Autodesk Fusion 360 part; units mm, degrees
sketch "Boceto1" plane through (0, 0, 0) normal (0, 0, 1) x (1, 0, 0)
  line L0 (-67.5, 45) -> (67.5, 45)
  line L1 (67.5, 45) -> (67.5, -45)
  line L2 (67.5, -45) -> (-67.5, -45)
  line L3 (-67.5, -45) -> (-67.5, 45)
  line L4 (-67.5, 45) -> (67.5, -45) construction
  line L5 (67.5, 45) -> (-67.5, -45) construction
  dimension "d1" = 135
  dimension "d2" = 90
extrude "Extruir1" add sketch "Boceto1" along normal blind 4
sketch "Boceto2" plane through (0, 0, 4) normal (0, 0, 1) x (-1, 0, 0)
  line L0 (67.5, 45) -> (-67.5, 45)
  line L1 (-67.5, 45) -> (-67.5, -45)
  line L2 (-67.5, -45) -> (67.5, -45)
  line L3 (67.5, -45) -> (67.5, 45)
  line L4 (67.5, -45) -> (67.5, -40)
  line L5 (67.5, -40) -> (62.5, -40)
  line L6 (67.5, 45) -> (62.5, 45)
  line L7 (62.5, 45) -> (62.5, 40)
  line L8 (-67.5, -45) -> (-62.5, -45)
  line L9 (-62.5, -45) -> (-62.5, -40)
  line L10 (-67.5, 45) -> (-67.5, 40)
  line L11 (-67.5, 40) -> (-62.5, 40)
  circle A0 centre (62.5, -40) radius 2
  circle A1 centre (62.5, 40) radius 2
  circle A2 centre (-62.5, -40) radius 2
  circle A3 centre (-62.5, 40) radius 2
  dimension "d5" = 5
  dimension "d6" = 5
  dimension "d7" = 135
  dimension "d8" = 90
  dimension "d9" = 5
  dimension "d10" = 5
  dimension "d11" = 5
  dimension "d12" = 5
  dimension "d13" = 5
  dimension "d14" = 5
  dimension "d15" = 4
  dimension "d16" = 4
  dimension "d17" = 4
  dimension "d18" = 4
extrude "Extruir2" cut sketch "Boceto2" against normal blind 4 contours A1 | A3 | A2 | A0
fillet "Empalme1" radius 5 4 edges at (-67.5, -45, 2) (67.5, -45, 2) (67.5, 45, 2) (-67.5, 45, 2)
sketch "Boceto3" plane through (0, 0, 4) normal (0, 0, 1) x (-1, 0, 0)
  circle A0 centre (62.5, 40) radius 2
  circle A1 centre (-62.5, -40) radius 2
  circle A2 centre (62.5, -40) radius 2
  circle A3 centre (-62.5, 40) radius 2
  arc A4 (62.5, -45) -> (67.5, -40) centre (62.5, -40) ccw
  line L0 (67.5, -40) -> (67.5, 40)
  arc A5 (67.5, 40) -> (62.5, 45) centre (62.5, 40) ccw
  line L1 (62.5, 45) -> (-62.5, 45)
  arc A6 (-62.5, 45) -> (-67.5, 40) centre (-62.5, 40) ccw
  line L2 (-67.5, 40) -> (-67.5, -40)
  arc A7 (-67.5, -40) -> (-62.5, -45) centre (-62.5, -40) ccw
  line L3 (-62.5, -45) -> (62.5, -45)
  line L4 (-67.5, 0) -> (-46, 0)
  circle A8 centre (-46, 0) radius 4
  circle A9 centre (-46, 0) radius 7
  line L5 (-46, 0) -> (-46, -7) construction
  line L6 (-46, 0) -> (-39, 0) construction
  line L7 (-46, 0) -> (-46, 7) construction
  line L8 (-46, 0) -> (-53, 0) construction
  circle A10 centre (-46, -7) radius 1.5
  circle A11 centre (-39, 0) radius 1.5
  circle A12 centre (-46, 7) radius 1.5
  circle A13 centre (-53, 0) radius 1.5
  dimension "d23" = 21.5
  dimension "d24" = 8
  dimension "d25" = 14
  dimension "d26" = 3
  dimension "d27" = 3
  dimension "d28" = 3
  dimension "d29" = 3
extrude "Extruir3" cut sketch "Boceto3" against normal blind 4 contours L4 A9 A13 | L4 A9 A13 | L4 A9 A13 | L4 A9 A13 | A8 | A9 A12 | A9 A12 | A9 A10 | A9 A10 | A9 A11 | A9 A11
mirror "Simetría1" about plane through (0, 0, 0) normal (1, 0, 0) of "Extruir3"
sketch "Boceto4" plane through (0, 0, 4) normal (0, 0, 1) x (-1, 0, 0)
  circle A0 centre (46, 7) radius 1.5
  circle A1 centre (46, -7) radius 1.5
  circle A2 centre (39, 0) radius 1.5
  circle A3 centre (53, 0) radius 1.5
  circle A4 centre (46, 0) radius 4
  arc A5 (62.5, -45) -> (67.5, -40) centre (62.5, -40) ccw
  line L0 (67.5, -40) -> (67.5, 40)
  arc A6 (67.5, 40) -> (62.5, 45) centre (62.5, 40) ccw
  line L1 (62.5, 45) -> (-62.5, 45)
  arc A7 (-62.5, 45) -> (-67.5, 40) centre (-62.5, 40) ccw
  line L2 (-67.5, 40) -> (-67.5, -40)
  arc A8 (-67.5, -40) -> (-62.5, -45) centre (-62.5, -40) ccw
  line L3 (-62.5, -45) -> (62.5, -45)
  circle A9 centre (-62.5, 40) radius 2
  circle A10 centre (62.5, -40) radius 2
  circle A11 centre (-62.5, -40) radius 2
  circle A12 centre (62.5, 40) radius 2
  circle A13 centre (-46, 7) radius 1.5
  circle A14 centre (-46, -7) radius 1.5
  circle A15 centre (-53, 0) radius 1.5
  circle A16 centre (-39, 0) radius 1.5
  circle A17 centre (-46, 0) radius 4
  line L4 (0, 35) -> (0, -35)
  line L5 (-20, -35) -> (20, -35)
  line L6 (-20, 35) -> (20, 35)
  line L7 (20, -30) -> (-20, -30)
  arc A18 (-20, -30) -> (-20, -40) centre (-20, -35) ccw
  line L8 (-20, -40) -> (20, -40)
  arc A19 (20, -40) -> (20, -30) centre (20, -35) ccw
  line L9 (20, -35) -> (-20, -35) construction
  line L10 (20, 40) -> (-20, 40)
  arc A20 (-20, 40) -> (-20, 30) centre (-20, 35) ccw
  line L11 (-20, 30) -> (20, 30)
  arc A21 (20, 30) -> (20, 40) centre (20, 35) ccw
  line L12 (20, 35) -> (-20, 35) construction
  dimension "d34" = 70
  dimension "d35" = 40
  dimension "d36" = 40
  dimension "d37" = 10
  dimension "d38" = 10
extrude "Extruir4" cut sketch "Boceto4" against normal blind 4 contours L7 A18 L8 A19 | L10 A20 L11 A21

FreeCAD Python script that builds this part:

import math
import FreeCAD as App
import Part
import Sketcher
Q = App.Units.Quantity


def edges_at(feature, points):
    """Names of the edges that pass closest to the given points."""
    edges = feature.Shape.Edges
    near = lambda p: min(range(len(edges)), key=lambda i: edges[i].distToShape(Part.Vertex(*p))[0])
    return sorted({f"Edge{near(p) + 1}" for p in points})


def add_polygon(sketch, points):
    """Adds a closed chain of lines whose ends are joined by coincident constraints."""
    first, n = sketch.GeometryCount, len(points)
    for a, b in zip(points, points[1:] + points[:1]):
        sketch.addGeometry(Part.LineSegment(App.Vector(*a, 0), App.Vector(*b, 0)), False)
    for i in range(n):
        sketch.addConstraint(Sketcher.Constraint("Coincident", first + i, 2, first + (i + 1) % n, 1))

doc = App.newDocument("Part")
body = doc.addObject("PartDesign::Body", "Body")

# Sketch on XY plane
sketch1 = doc.addObject("Sketcher::SketchObject", "Sketch")
body.addObject(sketch1)
sketch1.AttachmentSupport = (doc.XY_Plane, [""])
sketch1.MapMode = "FlatFace"
add_polygon(sketch1, [(68, 45), (-68, 45), (-68, -45), (68, -45)])  # lines 0-3
sketch1.addConstraint([
    Sketcher.Constraint("Horizontal", 0),
    Sketcher.Constraint("Vertical", 1),
    Sketcher.Constraint("Horizontal", 2),
    Sketcher.Constraint("Vertical", 3),
    Sketcher.Constraint("Symmetric", 0, 2, 2, 2, -1, 1),
    Sketcher.Constraint("DistanceX", 0, 2, 0, 1, Q("135 mm")),
    Sketcher.Constraint("DistanceY", 1, 2, 1, 1, Q("90 mm")),
])
pad1 = doc.addObject("PartDesign::Pad", "Pad")
body.addObject(pad1)
pad1.Profile = sketch1
pad1.Length = 4

# Sketch on XY plane
sketch2 = doc.addObject("Sketcher::SketchObject", "Sketch001")
body.addObject(sketch2)
sketch2.AttachmentSupport = (doc.XY_Plane, [""])
sketch2.MapMode = "FlatFace"
sketch2.AttachmentOffset = App.Placement(App.Vector(0, 0, 4), App.Rotation())
sketch2.addGeometry([
    Part.Circle(App.Vector(-62.5, -40, 0), App.Vector(0, 0, 1), 2),
    Part.Circle(App.Vector(62.5, -40, 0), App.Vector(0, 0, 1), 2),
    Part.Circle(App.Vector(62.5, 40, 0), App.Vector(0, 0, 1), 2),
    Part.Circle(App.Vector(-62.5, 40, 0), App.Vector(0, 0, 1), 2),
], False)
sketch2.addConstraint([
    Sketcher.Constraint("Equal", 0, 1),
    Sketcher.Constraint("Equal", 1, 2),
    Sketcher.Constraint("Equal", 2, 3),
    Sketcher.Constraint("Symmetric", 0, 3, 2, 3, -1, 1),
    Sketcher.Constraint("Symmetric", 1, 3, 3, 3, -1, 1),
    Sketcher.Constraint("Symmetric", 0, 3, 1, 3, -2),
    Sketcher.Constraint("Diameter", 0, Q("4 mm")),
    Sketcher.Constraint("DistanceY", 0, 3, -1, 1, Q("40 mm")),
    Sketcher.Constraint("DistanceX", 0, 3, 1, 3, Q("125 mm")),
])
pocket1 = doc.addObject("PartDesign::Pocket", "Pocket")
body.addObject(pocket1)
pocket1.Profile = sketch2
pocket1.Length = 4
doc.recompute()

fillet = doc.addObject("PartDesign::Fillet", "Fillet")
body.addObject(fillet)
fillet.Base = (pocket1, edges_at(pocket1, [
    (-67.5, -45, 2),
    (67.5, -45, 2),
    (67.5, 45, 2),
    (-67.5, 45, 2),
]))
fillet.Radius = 5

# Sketch on XY plane
sketch3 = doc.addObject("Sketcher::SketchObject", "Sketch002")
body.addObject(sketch3)
sketch3.AttachmentSupport = (doc.XY_Plane, [""])
sketch3.MapMode = "FlatFace"
sketch3.AttachmentOffset = App.Placement(App.Vector(0, 0, 4), App.Rotation())
sketch3.addGeometry([
    Part.Circle(App.Vector(53, 0, 0), App.Vector(0, 0, 1), 1.5),  # 0
    Part.Circle(App.Vector(46, 0, 0), App.Vector(0, 0, 1), 4),  # 1
    Part.Circle(App.Vector(46, -7, 0), App.Vector(0, 0, 1), 1.5),  # 2
    Part.Circle(App.Vector(46, 7, 0), App.Vector(0, 0, 1), 1.5),  # 3
    Part.Circle(App.Vector(39, 0, 0), App.Vector(0, 0, 1), 1.5),  # 4
], False)
sketch3.addConstraint([
    Sketcher.Constraint("Equal", 0, 2),
    Sketcher.Constraint("Equal", 2, 3),
    Sketcher.Constraint("Equal", 3, 4),
    Sketcher.Constraint("Symmetric", 2, 3, 3, 3, -1),
    Sketcher.Constraint("PointOnObject", 0, 3, -1),
    Sketcher.Constraint("PointOnObject", 1, 3, -1),
    Sketcher.Constraint("PointOnObject", 4, 3, -1),
    Sketcher.Constraint("Vertical", 1, 3, 2, 3),
    Sketcher.Constraint("Diameter", 0, Q("3 mm")),
    Sketcher.Constraint("Diameter", 1, Q("8 mm")),
    Sketcher.Constraint("DistanceY", 2, 3, 3, 3, Q("14 mm")),
    Sketcher.Constraint("DistanceX", 4, 3, 0, 3, Q("14 mm")),
    Sketcher.Constraint("DistanceX", -1, 1, 0, 3, Q("53 mm")),
    Sketcher.Constraint("DistanceX", -1, 1, 1, 3, Q("46 mm")),
])
pocket2 = doc.addObject("PartDesign::Pocket", "Pocket001")
body.addObject(pocket2)
pocket2.Profile = sketch3
pocket2.Length = 4
doc.recompute()

mirrored = doc.addObject("PartDesign::Mirrored", "Mirrored")
body.addObject(mirrored)
mirrored.Originals = [pocket2]
mirrored.MirrorPlane = (doc.YZ_Plane, [""])
body.Tip = mirrored

# Sketch on XY plane
sketch4 = doc.addObject("Sketcher::SketchObject", "Sketch003")
body.addObject(sketch4)
sketch4.AttachmentSupport = (doc.XY_Plane, [""])
sketch4.MapMode = "FlatFace"
sketch4.AttachmentOffset = App.Placement(App.Vector(0, 0, 4), App.Rotation())
sketch4.addGeometry([
    Part.LineSegment(App.Vector(-20, 30, 0), App.Vector(20, 30, 0)),  # 0
    Part.ArcOfCircle(Part.Circle(App.Vector(20, 35, 0), App.Vector(0, 0, 1), 5), math.radians(-90), math.radians(90)),  # 1
    Part.LineSegment(App.Vector(20, 40, 0), App.Vector(-20, 40, 0)),  # 2
    Part.ArcOfCircle(Part.Circle(App.Vector(-20, 35, 0), App.Vector(0, 0, 1), 5), math.radians(90), math.radians(270)),  # 3
    Part.LineSegment(App.Vector(20, -30, 0), App.Vector(-20, -30, 0)),  # 4
    Part.ArcOfCircle(Part.Circle(App.Vector(-20, -35, 0), App.Vector(0, 0, 1), 5), math.radians(90), math.radians(270)),  # 5
    Part.LineSegment(App.Vector(-20, -40, 0), App.Vector(20, -40, 0)),  # 6
    Part.ArcOfCircle(Part.Circle(App.Vector(20, -35, 0), App.Vector(0, 0, 1), 5), math.radians(-90), math.radians(90)),  # 7
], False)
sketch4.addConstraint([
    Sketcher.Constraint("Tangent", 0, 2, 1, 1),
    Sketcher.Constraint("Tangent", 1, 2, 2, 1),
    Sketcher.Constraint("Tangent", 2, 2, 3, 1),
    Sketcher.Constraint("Tangent", 3, 2, 0, 1),
    Sketcher.Constraint("Tangent", 4, 2, 5, 1),
    Sketcher.Constraint("Tangent", 5, 2, 6, 1),
    Sketcher.Constraint("Tangent", 6, 2, 7, 1),
    Sketcher.Constraint("Tangent", 7, 2, 4, 1),
    Sketcher.Constraint("Horizontal", 0),
    Sketcher.Constraint("Horizontal", 2),
    Sketcher.Constraint("Horizontal", 4),
    Sketcher.Constraint("Horizontal", 6),
    Sketcher.Constraint("Equal", 3, 5),
    Sketcher.Constraint("Symmetric", 1, 3, 5, 3, -1, 1),
    Sketcher.Constraint("Vertical", 3, 3, 5, 3),
    Sketcher.Constraint("Vertical", 1, 3, 7, 3),
    Sketcher.Constraint("Radius", 1, Q("5 mm")),
    Sketcher.Constraint("DistanceX", 0, 1, 0, 2, Q("40 mm")),
    Sketcher.Constraint("DistanceY", -1, 1, 1, 2, Q("40 mm")),
])
pocket3 = doc.addObject("PartDesign::Pocket", "Pocket002")
body.addObject(pocket3)
pocket3.Profile = sketch4
pocket3.Length = 4

doc.recompute()
